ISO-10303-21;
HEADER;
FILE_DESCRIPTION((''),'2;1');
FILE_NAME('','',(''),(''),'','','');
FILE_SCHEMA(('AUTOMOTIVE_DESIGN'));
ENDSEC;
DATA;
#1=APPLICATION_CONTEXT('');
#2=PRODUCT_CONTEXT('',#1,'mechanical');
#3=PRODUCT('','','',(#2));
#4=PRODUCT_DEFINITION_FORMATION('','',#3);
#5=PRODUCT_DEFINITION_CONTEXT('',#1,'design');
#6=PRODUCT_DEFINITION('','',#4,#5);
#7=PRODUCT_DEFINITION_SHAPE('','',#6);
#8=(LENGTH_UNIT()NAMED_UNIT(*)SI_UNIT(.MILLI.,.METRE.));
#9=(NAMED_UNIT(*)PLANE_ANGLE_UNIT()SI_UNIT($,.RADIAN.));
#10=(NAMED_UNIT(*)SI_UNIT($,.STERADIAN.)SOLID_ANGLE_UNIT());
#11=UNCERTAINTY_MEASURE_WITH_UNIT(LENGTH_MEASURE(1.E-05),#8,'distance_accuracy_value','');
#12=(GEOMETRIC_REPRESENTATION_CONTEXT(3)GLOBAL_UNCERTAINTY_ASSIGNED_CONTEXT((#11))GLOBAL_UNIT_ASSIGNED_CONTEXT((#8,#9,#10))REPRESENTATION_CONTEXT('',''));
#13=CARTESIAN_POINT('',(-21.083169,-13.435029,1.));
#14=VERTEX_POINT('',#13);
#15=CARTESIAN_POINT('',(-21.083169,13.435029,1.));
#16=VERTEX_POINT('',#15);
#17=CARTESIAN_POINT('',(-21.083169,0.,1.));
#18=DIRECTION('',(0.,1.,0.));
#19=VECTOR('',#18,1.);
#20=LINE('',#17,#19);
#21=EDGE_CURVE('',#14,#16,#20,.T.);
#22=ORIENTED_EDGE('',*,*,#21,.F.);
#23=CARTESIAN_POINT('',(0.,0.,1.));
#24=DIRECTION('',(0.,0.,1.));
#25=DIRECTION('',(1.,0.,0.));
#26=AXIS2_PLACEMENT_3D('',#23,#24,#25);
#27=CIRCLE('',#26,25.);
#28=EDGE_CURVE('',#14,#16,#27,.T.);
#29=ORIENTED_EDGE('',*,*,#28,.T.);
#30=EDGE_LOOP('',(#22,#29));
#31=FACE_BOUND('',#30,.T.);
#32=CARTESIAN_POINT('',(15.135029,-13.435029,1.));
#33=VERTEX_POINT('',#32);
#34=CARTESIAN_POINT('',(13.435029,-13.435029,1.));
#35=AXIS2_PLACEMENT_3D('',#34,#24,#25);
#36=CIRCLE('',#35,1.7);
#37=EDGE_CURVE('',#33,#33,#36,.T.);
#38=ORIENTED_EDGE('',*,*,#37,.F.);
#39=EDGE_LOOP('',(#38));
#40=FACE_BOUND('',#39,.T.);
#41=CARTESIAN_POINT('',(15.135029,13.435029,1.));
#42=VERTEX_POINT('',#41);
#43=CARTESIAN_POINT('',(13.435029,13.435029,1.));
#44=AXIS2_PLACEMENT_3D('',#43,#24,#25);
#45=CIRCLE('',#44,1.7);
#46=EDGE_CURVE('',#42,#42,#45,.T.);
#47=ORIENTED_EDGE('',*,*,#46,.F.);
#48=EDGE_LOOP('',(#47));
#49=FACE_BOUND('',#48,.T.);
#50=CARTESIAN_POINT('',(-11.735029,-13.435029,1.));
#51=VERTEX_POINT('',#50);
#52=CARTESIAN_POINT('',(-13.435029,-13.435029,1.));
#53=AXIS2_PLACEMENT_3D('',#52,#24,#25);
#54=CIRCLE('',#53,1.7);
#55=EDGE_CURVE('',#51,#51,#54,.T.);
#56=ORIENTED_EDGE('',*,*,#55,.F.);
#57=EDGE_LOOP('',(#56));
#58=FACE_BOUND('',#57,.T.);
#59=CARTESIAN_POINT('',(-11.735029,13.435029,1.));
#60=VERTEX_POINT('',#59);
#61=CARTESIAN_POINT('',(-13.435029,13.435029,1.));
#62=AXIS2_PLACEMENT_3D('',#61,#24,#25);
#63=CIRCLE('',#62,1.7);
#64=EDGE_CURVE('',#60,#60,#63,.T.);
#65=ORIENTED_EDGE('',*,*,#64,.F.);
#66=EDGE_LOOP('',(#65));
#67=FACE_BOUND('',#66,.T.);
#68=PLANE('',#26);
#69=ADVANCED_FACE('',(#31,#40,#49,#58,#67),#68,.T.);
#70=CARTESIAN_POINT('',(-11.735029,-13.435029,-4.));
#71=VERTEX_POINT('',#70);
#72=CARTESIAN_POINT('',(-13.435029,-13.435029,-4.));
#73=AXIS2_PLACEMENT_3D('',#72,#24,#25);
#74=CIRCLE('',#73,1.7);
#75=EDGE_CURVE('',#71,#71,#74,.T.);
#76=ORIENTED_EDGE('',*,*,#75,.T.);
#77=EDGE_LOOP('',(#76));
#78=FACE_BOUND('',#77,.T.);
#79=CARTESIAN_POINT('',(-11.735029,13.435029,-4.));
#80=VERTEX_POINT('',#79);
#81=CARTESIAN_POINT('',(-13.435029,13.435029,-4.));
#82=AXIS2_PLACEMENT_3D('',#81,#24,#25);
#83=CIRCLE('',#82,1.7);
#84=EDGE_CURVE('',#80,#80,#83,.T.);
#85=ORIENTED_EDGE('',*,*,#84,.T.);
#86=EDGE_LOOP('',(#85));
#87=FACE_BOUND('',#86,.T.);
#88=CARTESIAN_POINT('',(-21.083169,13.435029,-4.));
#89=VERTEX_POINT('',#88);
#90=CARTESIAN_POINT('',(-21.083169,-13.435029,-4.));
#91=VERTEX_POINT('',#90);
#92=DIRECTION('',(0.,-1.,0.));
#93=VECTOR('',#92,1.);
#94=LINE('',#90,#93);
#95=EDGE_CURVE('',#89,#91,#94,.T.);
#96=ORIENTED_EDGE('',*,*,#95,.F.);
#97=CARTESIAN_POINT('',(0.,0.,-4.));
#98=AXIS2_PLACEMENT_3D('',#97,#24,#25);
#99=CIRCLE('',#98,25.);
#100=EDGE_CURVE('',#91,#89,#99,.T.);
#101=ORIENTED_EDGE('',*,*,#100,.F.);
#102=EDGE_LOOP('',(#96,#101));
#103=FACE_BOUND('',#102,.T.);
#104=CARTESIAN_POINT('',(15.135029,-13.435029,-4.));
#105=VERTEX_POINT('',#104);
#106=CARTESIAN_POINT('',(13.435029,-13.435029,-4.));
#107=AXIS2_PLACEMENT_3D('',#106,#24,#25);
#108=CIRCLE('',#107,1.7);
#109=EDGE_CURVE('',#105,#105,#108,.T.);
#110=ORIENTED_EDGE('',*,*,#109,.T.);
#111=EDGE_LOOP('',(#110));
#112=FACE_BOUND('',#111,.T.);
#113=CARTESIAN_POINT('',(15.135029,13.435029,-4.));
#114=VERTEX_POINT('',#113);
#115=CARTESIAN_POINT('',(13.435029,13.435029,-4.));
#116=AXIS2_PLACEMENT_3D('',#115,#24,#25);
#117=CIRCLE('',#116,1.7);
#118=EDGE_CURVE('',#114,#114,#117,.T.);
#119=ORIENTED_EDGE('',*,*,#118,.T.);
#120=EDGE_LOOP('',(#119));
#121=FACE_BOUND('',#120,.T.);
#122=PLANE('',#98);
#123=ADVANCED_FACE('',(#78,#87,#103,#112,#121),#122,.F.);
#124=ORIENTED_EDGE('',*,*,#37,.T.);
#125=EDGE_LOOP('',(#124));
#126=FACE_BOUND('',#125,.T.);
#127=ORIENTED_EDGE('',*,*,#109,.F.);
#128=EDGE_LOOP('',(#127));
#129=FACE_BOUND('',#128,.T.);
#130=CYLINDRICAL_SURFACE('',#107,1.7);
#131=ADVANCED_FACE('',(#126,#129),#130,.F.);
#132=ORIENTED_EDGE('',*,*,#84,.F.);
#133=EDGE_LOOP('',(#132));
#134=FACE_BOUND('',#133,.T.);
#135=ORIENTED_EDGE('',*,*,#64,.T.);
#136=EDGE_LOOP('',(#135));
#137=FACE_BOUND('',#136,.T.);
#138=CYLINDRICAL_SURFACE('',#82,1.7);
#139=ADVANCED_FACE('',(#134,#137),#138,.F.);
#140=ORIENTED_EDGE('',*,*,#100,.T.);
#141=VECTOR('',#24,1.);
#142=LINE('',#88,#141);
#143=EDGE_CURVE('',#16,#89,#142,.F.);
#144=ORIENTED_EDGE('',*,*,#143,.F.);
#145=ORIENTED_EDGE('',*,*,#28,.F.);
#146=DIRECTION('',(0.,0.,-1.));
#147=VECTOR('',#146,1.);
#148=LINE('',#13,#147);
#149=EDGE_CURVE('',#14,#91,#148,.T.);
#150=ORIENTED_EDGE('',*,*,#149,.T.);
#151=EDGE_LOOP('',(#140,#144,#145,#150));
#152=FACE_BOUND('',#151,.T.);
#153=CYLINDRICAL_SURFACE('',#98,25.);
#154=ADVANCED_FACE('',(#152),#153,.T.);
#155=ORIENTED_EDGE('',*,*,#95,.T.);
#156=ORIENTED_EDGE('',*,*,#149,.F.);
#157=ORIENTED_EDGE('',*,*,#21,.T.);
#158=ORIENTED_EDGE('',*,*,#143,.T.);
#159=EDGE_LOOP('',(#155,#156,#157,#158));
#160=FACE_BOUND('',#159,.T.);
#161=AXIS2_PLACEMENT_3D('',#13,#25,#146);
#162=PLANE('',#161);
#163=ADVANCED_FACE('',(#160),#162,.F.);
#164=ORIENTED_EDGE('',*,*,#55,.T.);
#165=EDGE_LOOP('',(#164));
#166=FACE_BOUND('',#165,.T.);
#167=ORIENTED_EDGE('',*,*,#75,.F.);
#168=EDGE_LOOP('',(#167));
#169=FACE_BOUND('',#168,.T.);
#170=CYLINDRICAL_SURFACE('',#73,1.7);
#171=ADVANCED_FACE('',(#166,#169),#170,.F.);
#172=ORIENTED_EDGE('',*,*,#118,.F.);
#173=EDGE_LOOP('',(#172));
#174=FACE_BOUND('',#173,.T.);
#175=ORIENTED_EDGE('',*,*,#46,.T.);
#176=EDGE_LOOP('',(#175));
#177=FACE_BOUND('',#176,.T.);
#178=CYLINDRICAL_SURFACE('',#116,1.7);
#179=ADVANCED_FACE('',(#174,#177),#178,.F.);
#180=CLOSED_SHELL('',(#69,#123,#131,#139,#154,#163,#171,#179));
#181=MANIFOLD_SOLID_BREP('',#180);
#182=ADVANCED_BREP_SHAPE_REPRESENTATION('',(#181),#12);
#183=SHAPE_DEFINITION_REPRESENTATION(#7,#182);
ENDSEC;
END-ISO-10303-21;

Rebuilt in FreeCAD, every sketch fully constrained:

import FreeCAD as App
import Part
import Sketcher

V = App.Vector
Q = App.Units.Quantity


def add_polygon(sketch, points):
    """Adds a closed chain of lines whose ends are joined by coincident constraints."""
    first, n = sketch.GeometryCount, len(points)
    for a, b in zip(points, points[1:] + points[:1]):
        sketch.addGeometry(Part.LineSegment(App.Vector(*a, 0), App.Vector(*b, 0)), False)
    for i in range(n):
        sketch.addConstraint(Sketcher.Constraint("Coincident", first + i, 2, first + (i + 1) % n, 1))

doc = App.newDocument("Part")
body = doc.addObject("PartDesign::Body", "Body")

# Sketch on XY plane
sketch1 = body.newObject("Sketcher::SketchObject", "Sketch")
sketch1.AttachmentSupport = (doc.getObject("XY_Plane"), [""])
sketch1.MapMode = "FlatFace"
sketch1.addGeometry([
    Part.Circle(V(0, 0, 0), V(0, 0, 1), 25),  # 0
    Part.Circle(V(-13.435029, -13.435029, 0), V(0, 0, 1), 1.7),  # 1
    Part.Circle(V(13.435029, -13.435029, 0), V(0, 0, 1), 1.7),  # 2
    Part.Circle(V(-13.435029, 13.435029, 0), V(0, 0, 1), 1.7),  # 3
    Part.Circle(V(13.435029, 13.435029, 0), V(0, 0, 1), 1.7),  # 4
], False)
sketch1.addConstraint([
    Sketcher.Constraint("Coincident", 0, 3, -1, 1),
    Sketcher.Constraint("Equal", 1, 2),
    Sketcher.Constraint("Equal", 2, 3),
    Sketcher.Constraint("Equal", 3, 4),
    Sketcher.Constraint("Symmetric", 2, 3, 3, 3, -1, 1),
    Sketcher.Constraint("Symmetric", 1, 3, 4, 3, -1, 1),
    Sketcher.Constraint("Symmetric", 1, 3, 2, 3, -2),
    Sketcher.Constraint("Diameter", 0, Q("50 mm")),
    Sketcher.Constraint("Diameter", 1, Q("3.4 mm")),
    Sketcher.Constraint("DistanceX", 1, 3, -1, 1, Q("13.435029 mm")),
    Sketcher.Constraint("DistanceY", 1, 3, -1, 1, Q("13.435029 mm")),
])
pad1 = body.newObject("PartDesign::Pad", "Pad")
pad1.Profile = sketch1
pad1.Type = "TwoLengths"
pad1.Length = 1
pad1.Length2 = 4

# Sketch on XY plane
sketch2 = body.newObject("Sketcher::SketchObject", "Sketch001")
sketch2.AttachmentSupport = (doc.getObject("XY_Plane"), [""])
sketch2.MapMode = "FlatFace"
sketch2.AttachmentOffset = App.Placement(V(0, 0, -4), App.Rotation())
add_polygon(sketch2, [(-21.083169, 13.510075), (-21.083169, -13.435029), (-28.203262, -13.435029), (-28.203262, 13.510075)])  # lines 0-3
sketch2.addConstraint([
    Sketcher.Constraint("Vertical", 0),
    Sketcher.Constraint("Horizontal", 1),
    Sketcher.Constraint("Vertical", 2),
    Sketcher.Constraint("Horizontal", 3),
    Sketcher.Constraint("DistanceX", 1, 2, 1, 1, Q("7.120093 mm")),
    Sketcher.Constraint("DistanceY", 0, 2, 0, 1, Q("26.945104 mm")),
    Sketcher.Constraint("DistanceX", 0, 2, -1, 1, Q("21.083169 mm")),
    Sketcher.Constraint("DistanceY", 0, 2, -1, 1, Q("13.435029 mm")),
])
pocket1 = body.newObject("PartDesign::Pocket", "Pocket")
pocket1.Profile = sketch2
pocket1.Type = "ThroughAll"
pocket1.Reversed = True

doc.recompute()
